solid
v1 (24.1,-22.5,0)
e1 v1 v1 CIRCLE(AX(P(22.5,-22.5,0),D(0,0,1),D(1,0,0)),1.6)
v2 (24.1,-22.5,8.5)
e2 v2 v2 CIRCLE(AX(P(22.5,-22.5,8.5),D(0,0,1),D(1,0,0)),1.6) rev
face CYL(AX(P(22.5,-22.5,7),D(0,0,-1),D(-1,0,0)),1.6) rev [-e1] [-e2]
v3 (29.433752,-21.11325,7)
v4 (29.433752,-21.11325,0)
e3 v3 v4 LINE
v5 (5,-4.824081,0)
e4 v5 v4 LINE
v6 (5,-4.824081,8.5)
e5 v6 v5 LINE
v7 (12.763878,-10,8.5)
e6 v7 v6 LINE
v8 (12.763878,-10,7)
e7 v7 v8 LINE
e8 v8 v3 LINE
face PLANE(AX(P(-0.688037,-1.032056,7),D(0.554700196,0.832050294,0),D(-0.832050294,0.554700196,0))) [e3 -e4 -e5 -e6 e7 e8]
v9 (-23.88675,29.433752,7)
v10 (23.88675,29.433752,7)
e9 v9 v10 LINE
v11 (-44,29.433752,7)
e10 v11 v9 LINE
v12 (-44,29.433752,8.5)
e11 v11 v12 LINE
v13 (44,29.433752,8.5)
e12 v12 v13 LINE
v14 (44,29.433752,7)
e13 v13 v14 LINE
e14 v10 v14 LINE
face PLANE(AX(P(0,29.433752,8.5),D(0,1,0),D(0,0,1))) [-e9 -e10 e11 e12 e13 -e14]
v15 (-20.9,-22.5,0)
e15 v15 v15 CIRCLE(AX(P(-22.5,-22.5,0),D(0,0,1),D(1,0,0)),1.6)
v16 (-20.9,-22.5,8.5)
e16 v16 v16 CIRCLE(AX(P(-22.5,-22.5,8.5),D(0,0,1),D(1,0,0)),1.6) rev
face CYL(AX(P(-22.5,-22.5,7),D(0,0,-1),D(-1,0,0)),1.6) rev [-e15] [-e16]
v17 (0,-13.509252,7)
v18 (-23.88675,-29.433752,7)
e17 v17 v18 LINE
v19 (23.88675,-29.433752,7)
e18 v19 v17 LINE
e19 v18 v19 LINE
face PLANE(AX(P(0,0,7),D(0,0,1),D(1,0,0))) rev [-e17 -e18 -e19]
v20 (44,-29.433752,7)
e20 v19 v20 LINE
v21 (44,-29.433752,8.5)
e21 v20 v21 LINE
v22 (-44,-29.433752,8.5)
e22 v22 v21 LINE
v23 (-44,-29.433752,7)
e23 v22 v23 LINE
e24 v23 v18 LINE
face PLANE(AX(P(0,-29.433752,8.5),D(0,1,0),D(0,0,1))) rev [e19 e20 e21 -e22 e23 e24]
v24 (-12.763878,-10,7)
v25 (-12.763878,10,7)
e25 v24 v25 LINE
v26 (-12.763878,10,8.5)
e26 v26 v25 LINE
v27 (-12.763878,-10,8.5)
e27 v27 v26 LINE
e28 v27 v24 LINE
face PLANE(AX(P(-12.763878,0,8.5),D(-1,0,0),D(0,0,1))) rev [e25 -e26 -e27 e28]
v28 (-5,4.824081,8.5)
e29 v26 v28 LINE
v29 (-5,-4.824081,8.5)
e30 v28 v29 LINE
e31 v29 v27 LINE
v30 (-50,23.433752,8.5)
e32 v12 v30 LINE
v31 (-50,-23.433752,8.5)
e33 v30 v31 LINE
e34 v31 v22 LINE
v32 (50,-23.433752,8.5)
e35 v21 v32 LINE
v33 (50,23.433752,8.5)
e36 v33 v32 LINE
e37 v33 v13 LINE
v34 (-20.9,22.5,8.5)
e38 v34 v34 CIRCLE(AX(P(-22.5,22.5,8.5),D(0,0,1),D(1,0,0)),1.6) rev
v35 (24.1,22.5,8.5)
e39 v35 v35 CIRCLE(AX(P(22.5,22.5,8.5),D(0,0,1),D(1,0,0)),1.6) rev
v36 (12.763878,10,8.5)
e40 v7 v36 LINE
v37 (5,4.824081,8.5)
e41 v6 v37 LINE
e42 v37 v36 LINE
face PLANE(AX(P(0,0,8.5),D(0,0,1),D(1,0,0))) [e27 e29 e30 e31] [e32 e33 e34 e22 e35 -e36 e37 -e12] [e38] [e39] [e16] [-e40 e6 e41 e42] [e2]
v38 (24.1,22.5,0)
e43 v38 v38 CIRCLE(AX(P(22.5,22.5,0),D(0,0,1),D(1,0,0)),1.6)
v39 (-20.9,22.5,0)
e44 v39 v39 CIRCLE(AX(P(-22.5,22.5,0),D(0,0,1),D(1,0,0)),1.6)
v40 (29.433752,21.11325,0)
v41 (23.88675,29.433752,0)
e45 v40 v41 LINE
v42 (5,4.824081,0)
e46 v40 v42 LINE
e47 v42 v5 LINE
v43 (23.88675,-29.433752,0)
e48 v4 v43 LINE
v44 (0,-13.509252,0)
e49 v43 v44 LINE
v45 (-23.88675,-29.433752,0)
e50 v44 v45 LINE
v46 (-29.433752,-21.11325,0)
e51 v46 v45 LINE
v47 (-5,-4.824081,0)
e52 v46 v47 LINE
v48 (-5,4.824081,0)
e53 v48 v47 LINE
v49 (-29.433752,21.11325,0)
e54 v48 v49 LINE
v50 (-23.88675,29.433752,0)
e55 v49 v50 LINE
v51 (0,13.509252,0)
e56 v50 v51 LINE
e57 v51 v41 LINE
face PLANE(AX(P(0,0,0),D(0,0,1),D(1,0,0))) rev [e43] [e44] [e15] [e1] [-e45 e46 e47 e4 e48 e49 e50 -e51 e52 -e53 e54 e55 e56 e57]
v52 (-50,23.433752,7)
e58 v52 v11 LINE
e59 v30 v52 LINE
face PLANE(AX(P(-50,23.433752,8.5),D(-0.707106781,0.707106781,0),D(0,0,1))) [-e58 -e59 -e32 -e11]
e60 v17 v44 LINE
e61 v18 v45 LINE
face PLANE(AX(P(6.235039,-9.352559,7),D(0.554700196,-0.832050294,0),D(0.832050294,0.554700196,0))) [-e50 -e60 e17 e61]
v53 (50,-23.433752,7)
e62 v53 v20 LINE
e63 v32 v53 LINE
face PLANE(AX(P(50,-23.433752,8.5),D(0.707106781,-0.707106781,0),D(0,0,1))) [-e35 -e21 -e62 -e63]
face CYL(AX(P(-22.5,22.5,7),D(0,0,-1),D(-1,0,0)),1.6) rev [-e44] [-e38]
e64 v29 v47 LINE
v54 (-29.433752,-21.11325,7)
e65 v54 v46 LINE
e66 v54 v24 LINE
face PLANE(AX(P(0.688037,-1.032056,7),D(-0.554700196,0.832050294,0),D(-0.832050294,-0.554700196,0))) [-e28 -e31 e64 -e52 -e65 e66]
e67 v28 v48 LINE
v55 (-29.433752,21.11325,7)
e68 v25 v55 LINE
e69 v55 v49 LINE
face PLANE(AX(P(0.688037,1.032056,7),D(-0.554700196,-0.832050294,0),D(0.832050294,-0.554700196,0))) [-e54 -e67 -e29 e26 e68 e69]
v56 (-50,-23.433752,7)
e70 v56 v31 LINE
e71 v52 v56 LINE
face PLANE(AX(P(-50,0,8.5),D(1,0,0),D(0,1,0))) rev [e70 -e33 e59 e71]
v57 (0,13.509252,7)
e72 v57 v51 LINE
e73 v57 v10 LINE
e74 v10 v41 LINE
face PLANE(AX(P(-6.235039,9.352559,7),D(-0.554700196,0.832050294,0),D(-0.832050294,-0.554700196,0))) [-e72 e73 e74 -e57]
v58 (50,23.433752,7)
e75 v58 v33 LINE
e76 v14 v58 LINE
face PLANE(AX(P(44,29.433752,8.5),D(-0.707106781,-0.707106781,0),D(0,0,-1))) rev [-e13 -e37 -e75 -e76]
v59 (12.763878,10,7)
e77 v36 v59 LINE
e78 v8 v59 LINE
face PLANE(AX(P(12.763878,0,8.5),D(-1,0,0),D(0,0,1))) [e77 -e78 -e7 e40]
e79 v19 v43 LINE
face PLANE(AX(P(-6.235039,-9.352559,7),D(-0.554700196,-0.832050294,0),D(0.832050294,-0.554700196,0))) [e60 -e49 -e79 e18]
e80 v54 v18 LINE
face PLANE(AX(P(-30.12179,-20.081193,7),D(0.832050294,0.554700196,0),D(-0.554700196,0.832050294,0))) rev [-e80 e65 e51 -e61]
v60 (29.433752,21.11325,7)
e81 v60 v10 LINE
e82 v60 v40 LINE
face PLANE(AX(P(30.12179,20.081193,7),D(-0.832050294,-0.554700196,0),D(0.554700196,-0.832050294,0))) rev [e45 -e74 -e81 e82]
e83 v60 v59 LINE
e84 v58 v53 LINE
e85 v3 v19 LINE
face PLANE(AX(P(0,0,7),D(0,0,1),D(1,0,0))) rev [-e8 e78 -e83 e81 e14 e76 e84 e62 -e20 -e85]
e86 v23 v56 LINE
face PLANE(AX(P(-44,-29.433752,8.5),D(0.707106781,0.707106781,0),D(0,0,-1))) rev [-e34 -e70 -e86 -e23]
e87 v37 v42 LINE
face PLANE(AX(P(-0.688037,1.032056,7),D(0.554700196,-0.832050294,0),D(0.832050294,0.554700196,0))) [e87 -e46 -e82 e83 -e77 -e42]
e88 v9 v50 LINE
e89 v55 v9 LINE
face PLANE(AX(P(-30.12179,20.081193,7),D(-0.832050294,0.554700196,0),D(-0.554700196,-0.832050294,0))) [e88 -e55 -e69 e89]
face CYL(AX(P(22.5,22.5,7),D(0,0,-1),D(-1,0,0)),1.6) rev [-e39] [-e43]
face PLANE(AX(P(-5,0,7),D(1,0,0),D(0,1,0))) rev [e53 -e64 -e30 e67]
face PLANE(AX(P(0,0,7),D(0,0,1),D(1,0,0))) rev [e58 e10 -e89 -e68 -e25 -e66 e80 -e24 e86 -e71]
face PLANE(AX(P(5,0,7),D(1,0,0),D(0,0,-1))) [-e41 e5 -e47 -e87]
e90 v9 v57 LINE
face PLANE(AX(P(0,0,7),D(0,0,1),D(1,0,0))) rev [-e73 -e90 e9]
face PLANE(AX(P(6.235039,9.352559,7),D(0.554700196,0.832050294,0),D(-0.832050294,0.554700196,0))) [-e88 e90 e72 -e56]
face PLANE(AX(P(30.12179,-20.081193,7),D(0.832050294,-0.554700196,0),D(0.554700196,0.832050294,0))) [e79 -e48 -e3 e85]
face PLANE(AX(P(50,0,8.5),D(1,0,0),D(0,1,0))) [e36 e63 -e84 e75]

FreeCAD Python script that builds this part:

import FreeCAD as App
import Part
import Sketcher


def edges_at(feature, points):
    """Names of the edges that pass closest to the given points."""
    edges = feature.Shape.Edges
    near = lambda p: min(range(len(edges)), key=lambda i: edges[i].distToShape(Part.Vertex(*p))[0])
    return sorted({f"Edge{near(p) + 1}" for p in points})

doc = App.newDocument("Part")
params = doc.addObject("Spreadsheet::Sheet", "Params")
for row, (alias, value) in enumerate([
    ("sketch1_diameter", "3.2 mm"),
    ("sketch1_length", "10 mm"),
    ("pad1_length", "7 mm"),
    ("sketch2_diameter", "3.2 mm"),
    ("sketch2_width", "100 mm"),
    ("sketch2_height", "20 mm"),
    ("pad2_length", "1.5 mm"),
    ("chamfer_size", "6 mm"),
    ("chamfer2_size", "6 mm"),
], start=1):
    params.set(f"A{row}", alias)
    params.set(f"B{row}", "=" + value)
    params.setAlias(f"B{row}", alias)

body = doc.addObject("PartDesign::Body", "Body")

# Sketch on XY plane
sketch1 = body.newObject("Sketcher::SketchObject", "Sketch")
sketch1.AttachmentSupport = (doc.getObject("XY_Plane"), [""])
sketch1.MapMode = "FlatFace"
sketch1.addGeometry([
    Part.LineSegment(App.Vector(-21.11325, 15.566248, 0), App.Vector(-5, 4.824081, 0)),  # 0
    Part.LineSegment(App.Vector(-5, 4.824081, 0), App.Vector(-5, -4.824081, 0)),  # 1
    Part.LineSegment(App.Vector(-5, -4.824081, 0), App.Vector(-21.11325, -15.566248, 0)),  # 2
    Part.LineSegment(App.Vector(-21.11325, -15.566248, 0), App.Vector(-29.433752, -21.11325, 0)),  # 3
    Part.LineSegment(App.Vector(-29.433752, -21.11325, 0), App.Vector(-23.88675, -29.433752, 0)),  # 4
    Part.LineSegment(App.Vector(-23.88675, -29.433752, 0), App.Vector(-15.566248, -23.88675, 0)),  # 5
    Part.LineSegment(App.Vector(-15.566248, -23.88675, 0), App.Vector(0, -13.509252, 0)),  # 6
    Part.LineSegment(App.Vector(0, -13.509252, 0), App.Vector(15.566248, -23.88675, 0)),  # 7
    Part.LineSegment(App.Vector(15.566248, -23.88675, 0), App.Vector(23.88675, -29.433752, 0)),  # 8
    Part.LineSegment(App.Vector(23.88675, -29.433752, 0), App.Vector(29.433752, -21.11325, 0)),  # 9
    Part.LineSegment(App.Vector(29.433752, -21.11325, 0), App.Vector(21.11325, -15.566248, 0)),  # 10
    Part.LineSegment(App.Vector(21.11325, -15.566248, 0), App.Vector(5, -4.824081, 0)),  # 11
    Part.LineSegment(App.Vector(5, -4.824081, 0), App.Vector(5, 4.824081, 0)),  # 12
    Part.LineSegment(App.Vector(5, 4.824081, 0), App.Vector(21.11325, 15.566248, 0)),  # 13
    Part.LineSegment(App.Vector(21.11325, 15.566248, 0), App.Vector(29.433752, 21.11325, 0)),  # 14
    Part.LineSegment(App.Vector(29.433752, 21.11325, 0), App.Vector(23.88675, 29.433752, 0)),  # 15
    Part.LineSegment(App.Vector(23.88675, 29.433752, 0), App.Vector(15.566248, 23.88675, 0)),  # 16
    Part.LineSegment(App.Vector(15.566248, 23.88675, 0), App.Vector(0, 13.509252, 0)),  # 17
    Part.LineSegment(App.Vector(0, 13.509252, 0), App.Vector(-15.566248, 23.88675, 0)),  # 18
    Part.LineSegment(App.Vector(-15.566248, 23.88675, 0), App.Vector(-23.88675, 29.433752, 0)),  # 19
    Part.LineSegment(App.Vector(-23.88675, 29.433752, 0), App.Vector(-29.433752, 21.11325, 0)),  # 20
    Part.LineSegment(App.Vector(-29.433752, 21.11325, 0), App.Vector(-21.11325, 15.566248, 0)),  # 21
    Part.Circle(App.Vector(-22.5, -22.5, 0), App.Vector(0, 0, 1), 1.6),  # 22
    Part.Circle(App.Vector(22.5, -22.5, 0), App.Vector(0, 0, 1), 1.6),  # 23
    Part.Circle(App.Vector(-22.5, 22.5, 0), App.Vector(0, 0, 1), 1.6),  # 24
    Part.Circle(App.Vector(22.5, 22.5, 0), App.Vector(0, 0, 1), 1.6),  # 25
], False)
sketch1.addConstraint([
    Sketcher.Constraint("Coincident", 0, 2, 1, 1),
    Sketcher.Constraint("Coincident", 1, 2, 2, 1),
    Sketcher.Constraint("Coincident", 2, 2, 3, 1),
    Sketcher.Constraint("Coincident", 3, 2, 4, 1),
    Sketcher.Constraint("Coincident", 4, 2, 5, 1),
    Sketcher.Constraint("Coincident", 5, 2, 6, 1),
    Sketcher.Constraint("Coincident", 6, 2, 7, 1),
    Sketcher.Constraint("Coincident", 7, 2, 8, 1),
    Sketcher.Constraint("Coincident", 8, 2, 9, 1),
    Sketcher.Constraint("Coincident", 9, 2, 10, 1),
    Sketcher.Constraint("Coincident", 10, 2, 11, 1),
    Sketcher.Constraint("Coincident", 11, 2, 12, 1),
    Sketcher.Constraint("Coincident", 12, 2, 13, 1),
    Sketcher.Constraint("Coincident", 13, 2, 14, 1),
    Sketcher.Constraint("Coincident", 14, 2, 15, 1),
    Sketcher.Constraint("Coincident", 15, 2, 16, 1),
    Sketcher.Constraint("Coincident", 16, 2, 17, 1),
    Sketcher.Constraint("Coincident", 17, 2, 18, 1),
    Sketcher.Constraint("Coincident", 18, 2, 19, 1),
    Sketcher.Constraint("Coincident", 19, 2, 20, 1),
    Sketcher.Constraint("Coincident", 20, 2, 21, 1),
    Sketcher.Constraint("Coincident", 21, 2, 0, 1),
    Sketcher.Constraint("Vertical", 1),
    Sketcher.Constraint("Vertical", 12),
    Sketcher.Constraint("Equal", 22, 23),
    Sketcher.Constraint("Equal", 23, 24),
    Sketcher.Constraint("Equal", 24, 25),
    Sketcher.Constraint("Symmetric", 23, 3, 24, 3, -1, 1),
    Sketcher.Constraint("Symmetric", 22, 3, 25, 3, -1, 1),
    Sketcher.Constraint("Symmetric", 0, 2, 11, 2, -1, 1),
    Sketcher.Constraint("Symmetric", 2, 2, 13, 2, -1, 1),
    Sketcher.Constraint("Symmetric", 3, 2, 14, 2, -1, 1),
    Sketcher.Constraint("Symmetric", 4, 2, 15, 2, -1, 1),
    Sketcher.Constraint("Symmetric", 5, 2, 16, 2, -1, 1),
    Sketcher.Constraint("Symmetric", 6, 2, 17, 2, -1, 1),
    Sketcher.Constraint("Symmetric", 7, 2, 18, 2, -1, 1),
    Sketcher.Constraint("Symmetric", 8, 2, 19, 2, -1, 1),
    Sketcher.Constraint("Symmetric", 9, 2, 20, 2, -1, 1),
    Sketcher.Constraint("Symmetric", 10, 2, 21, 2, -1, 1),
    Sketcher.Constraint("Symmetric", 22, 3, 23, 3, -2),
    Sketcher.Constraint("Symmetric", 5, 2, 7, 2, -2),
    Sketcher.Constraint("Symmetric", 4, 2, 8, 2, -2),
    Sketcher.Constraint("Symmetric", 3, 2, 9, 2, -2),
    Sketcher.Constraint("Symmetric", 2, 2, 10, 2, -2),
    Sketcher.Constraint("PointOnObject", 6, 2, -2),
    Sketcher.Constraint("Parallel", 2, 3),
    Sketcher.Constraint("Perpendicular", 3, 4),
    Sketcher.Constraint("Perpendicular", 4, 5),
    Sketcher.Constraint("Parallel", 5, 6),
    Sketcher.Constraint("Parallel", 0, 7),
    Sketcher.Constraint("Parallel", 6, 13),
    Sketcher.Constraint("Equal", 3, 4),
    Sketcher.Constraint("Equal", 4, 5),
    Sketcher.Constraint("Diameter", 22, 3.2),
    Sketcher.Constraint("Distance", 3, 10.0),
    Sketcher.Constraint("DistanceX", 0, 2, -1, 1, 5.0),
    Sketcher.Constraint("DistanceX", 22, 3, 23, 3, 45.0),
    Sketcher.Constraint("DistanceY", 22, 3, 24, 3, 45.0),
    Sketcher.Constraint("DistanceY", 3, 2, 2, 2, 5.547002),
    Sketcher.Constraint("DistanceX", 5, 2, 8, 2, 39.452998),
    Sketcher.Constraint("DistanceY", 1, 2, 1, 1, 9.648162),
])
sketch1.setExpression("Constraints[53]", "Params.sketch1_diameter")
sketch1.setExpression("Constraints[54]", "Params.sketch1_length")
pad1 = body.newObject("PartDesign::Pad", "Pad")
pad1.Profile = sketch1
pad1.setExpression("Length", "Params.pad1_length")

# Sketch on XY plane
sketch2 = body.newObject("Sketcher::SketchObject", "Sketch001")
sketch2.AttachmentSupport = (doc.getObject("XY_Plane"), [""])
sketch2.MapMode = "FlatFace"
sketch2.AttachmentOffset = App.Placement(App.Vector(0, 0, 7), App.Rotation())
sketch2.addGeometry([
    Part.LineSegment(App.Vector(-50, 29.433752, 0), App.Vector(-50, -29.433752, 0)),  # 0
    Part.LineSegment(App.Vector(-50, -29.433752, 0), App.Vector(50, -29.433752, 0)),  # 1
    Part.LineSegment(App.Vector(50, -29.433752, 0), App.Vector(50, 29.433752, 0)),  # 2
    Part.LineSegment(App.Vector(50, 29.433752, 0), App.Vector(-50, 29.433752, 0)),  # 3
    Part.Circle(App.Vector(-22.5, -22.5, 0), App.Vector(0, 0, 1), 1.6),  # 4
    Part.Circle(App.Vector(22.5, -22.5, 0), App.Vector(0, 0, 1), 1.6),  # 5
    Part.LineSegment(App.Vector(-5, -4.824081, 0), App.Vector(-12.763878, -10, 0)),  # 6
    Part.LineSegment(App.Vector(-12.763878, -10, 0), App.Vector(-12.763878, 10, 0)),  # 7
    Part.LineSegment(App.Vector(-12.763878, 10, 0), App.Vector(-5, 4.824081, 0)),  # 8
    Part.LineSegment(App.Vector(-5, 4.824081, 0), App.Vector(-5, -4.824081, 0)),  # 9
    Part.Circle(App.Vector(-22.5, 22.5, 0), App.Vector(0, 0, 1), 1.6),  # 10
    Part.LineSegment(App.Vector(5, 4.824081, 0), App.Vector(12.763878, 10, 0)),  # 11
    Part.LineSegment(App.Vector(12.763878, 10, 0), App.Vector(12.763878, -10, 0)),  # 12
    Part.LineSegment(App.Vector(12.763878, -10, 0), App.Vector(5, -4.824081, 0)),  # 13
    Part.LineSegment(App.Vector(5, -4.824081, 0), App.Vector(5, 4.824081, 0)),  # 14
    Part.Circle(App.Vector(22.5, 22.5, 0), App.Vector(0, 0, 1), 1.6),  # 15
], False)
sketch2.addConstraint([
    Sketcher.Constraint("Coincident", 0, 2, 1, 1),
    Sketcher.Constraint("Coincident", 1, 2, 2, 1),
    Sketcher.Constraint("Coincident", 2, 2, 3, 1),
    Sketcher.Constraint("Coincident", 3, 2, 0, 1),
    Sketcher.Constraint("Coincident", 6, 2, 7, 1),
    Sketcher.Constraint("Coincident", 7, 2, 8, 1),
    Sketcher.Constraint("Coincident", 8, 2, 9, 1),
    Sketcher.Constraint("Coincident", 9, 2, 6, 1),
    Sketcher.Constraint("Coincident", 11, 2, 12, 1),
    Sketcher.Constraint("Coincident", 12, 2, 13, 1),
    Sketcher.Constraint("Coincident", 13, 2, 14, 1),
    Sketcher.Constraint("Coincident", 14, 2, 11, 1),
    Sketcher.Constraint("Vertical", 0),
    Sketcher.Constraint("Horizontal", 1),
    Sketcher.Constraint("Vertical", 2),
    Sketcher.Constraint("Horizontal", 3),
    Sketcher.Constraint("Vertical", 7),
    Sketcher.Constraint("Vertical", 9),
    Sketcher.Constraint("Vertical", 12),
    Sketcher.Constraint("Vertical", 14),
    Sketcher.Constraint("Equal", 4, 5),
    Sketcher.Constraint("Equal", 5, 10),
    Sketcher.Constraint("Equal", 10, 15),
    Sketcher.Constraint("Symmetric", 5, 3, 10, 3, -1, 1),
    Sketcher.Constraint("Symmetric", 4, 3, 15, 3, -1, 1),
    Sketcher.Constraint("Symmetric", 0, 2, 2, 2, -1, 1),
    Sketcher.Constraint("Symmetric", 6, 2, 11, 2, -1, 1),
    Sketcher.Constraint("Symmetric", 8, 2, 13, 2, -1, 1),
    Sketcher.Constraint("Symmetric", 4, 3, 5, 3, -2),
    Sketcher.Constraint("Parallel", 6, 11),
    Sketcher.Constraint("Parallel", 8, 13),
    Sketcher.Constraint("Horizontal", 7, 2, 11, 2),
    Sketcher.Constraint("Horizontal", 9, 2, 13, 2),
    Sketcher.Constraint("Diameter", 4, 3.2),
    Sketcher.Constraint("DistanceX", 1, 1, 1, 2, 100.0),
    Sketcher.Constraint("DistanceY", 7, 1, 7, 2, 20.0),
    Sketcher.Constraint("DistanceX", 8, 2, -1, 1, 5.0),
    Sketcher.Constraint("DistanceX", 4, 3, 5, 3, 45.0),
    Sketcher.Constraint("DistanceY", 4, 3, 10, 3, 45.0),
    Sketcher.Constraint("Distance", 6, 9.33102),
    Sketcher.Constraint("DistanceY", 0, 2, 0, 1, 58.867505),
    Sketcher.Constraint("DistanceY", 9, 2, 9, 1, 9.648162),
])
sketch2.setExpression("Constraints[33]", "Params.sketch2_diameter")
sketch2.setExpression("Constraints[34]", "Params.sketch2_width")
sketch2.setExpression("Constraints[35]", "Params.sketch2_height")
pad2 = body.newObject("PartDesign::Pad", "Pad001")
pad2.Profile = sketch2
pad2.setExpression("Length", "Params.pad2_length")
doc.recompute()

chamfer = body.newObject("PartDesign::Chamfer", "Chamfer")
chamfer.Base = (pad2, edges_at(pad2, [(-50, -29.434, 7.75)]))
chamfer.setExpression("Size", "Params.chamfer_size")
doc.recompute()

chamfer2 = body.newObject("PartDesign::Chamfer", "Chamfer001")
chamfer2.Base = (chamfer, edges_at(chamfer, [(50, 29.434, 7.75), (-50, 29.434, 7.75), (50, -29.434, 7.75)]))
chamfer2.setExpression("Size", "Params.chamfer2_size")

doc.recompute()
